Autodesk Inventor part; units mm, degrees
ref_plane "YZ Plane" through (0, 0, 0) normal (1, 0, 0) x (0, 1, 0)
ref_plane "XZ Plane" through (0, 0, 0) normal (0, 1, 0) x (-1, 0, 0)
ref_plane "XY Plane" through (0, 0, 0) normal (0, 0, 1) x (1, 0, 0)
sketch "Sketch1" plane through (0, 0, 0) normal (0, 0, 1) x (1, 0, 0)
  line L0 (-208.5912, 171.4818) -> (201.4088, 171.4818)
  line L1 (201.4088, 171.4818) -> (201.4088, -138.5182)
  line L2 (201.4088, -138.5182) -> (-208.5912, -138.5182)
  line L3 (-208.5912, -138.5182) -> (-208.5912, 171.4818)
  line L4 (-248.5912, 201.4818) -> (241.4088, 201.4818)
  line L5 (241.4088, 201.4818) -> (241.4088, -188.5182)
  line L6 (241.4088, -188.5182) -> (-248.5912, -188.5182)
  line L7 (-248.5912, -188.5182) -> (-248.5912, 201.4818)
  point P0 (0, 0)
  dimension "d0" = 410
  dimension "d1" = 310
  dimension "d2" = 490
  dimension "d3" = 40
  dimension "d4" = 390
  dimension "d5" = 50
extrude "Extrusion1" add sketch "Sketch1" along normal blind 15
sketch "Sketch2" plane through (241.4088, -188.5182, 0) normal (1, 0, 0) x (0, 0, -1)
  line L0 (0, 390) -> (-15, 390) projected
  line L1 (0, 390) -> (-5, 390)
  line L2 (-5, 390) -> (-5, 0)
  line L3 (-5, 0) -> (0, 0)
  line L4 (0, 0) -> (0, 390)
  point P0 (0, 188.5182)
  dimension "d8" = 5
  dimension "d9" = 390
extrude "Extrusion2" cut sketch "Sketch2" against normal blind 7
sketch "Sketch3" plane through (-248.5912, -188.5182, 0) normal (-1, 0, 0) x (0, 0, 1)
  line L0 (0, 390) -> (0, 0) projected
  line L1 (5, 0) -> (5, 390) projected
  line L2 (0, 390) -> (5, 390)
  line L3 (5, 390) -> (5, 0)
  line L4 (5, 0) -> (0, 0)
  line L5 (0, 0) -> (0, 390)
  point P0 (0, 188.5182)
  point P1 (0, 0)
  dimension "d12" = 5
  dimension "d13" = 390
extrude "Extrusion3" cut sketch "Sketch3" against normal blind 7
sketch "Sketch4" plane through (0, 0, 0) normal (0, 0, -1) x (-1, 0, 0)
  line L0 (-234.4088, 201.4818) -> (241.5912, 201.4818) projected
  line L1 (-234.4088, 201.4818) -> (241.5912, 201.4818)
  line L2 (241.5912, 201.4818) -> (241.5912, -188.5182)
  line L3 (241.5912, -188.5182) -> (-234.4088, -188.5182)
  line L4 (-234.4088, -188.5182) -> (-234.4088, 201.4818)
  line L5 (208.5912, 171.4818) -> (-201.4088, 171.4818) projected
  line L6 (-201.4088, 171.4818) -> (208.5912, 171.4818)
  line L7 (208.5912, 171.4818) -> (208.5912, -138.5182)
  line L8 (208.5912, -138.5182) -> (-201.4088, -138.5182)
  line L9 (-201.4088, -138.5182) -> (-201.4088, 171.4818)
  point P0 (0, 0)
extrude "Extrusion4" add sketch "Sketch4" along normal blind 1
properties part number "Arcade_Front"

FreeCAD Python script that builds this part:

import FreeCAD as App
import Part
import Sketcher
Q = App.Units.Quantity

doc = App.newDocument("Part")
params = doc.addObject("Spreadsheet::Sheet", "Params")
for row, (alias, value) in enumerate([
    ("sketch1_width", "490 mm"),
    ("sketch1_width2", "410 mm"),
    ("sketch1_height", "390 mm"),
    ("sketch1_height2", "310 mm"),
    ("pad1_length", "15 mm"),
    ("sketch2_width", "390 mm"),
    ("sketch2_height", "5 mm"),
    ("pocket1_length", "7 mm"),
    ("sketch3_width", "390 mm"),
    ("sketch3_height", "5 mm"),
    ("pocket2_length", "7 mm"),
    ("sketch4_width", "476 mm"),
    ("sketch4_width2", "410 mm"),
    ("sketch4_height", "390 mm"),
    ("sketch4_height2", "310 mm"),
    ("pad2_length", "1 mm"),
], start=1):
    params.set(f"A{row}", alias)
    params.set(f"B{row}", "=" + value)
    params.setAlias(f"B{row}", alias)

body = doc.addObject("PartDesign::Body", "Body")

# Sketch on XY plane
sketch1 = body.newObject("Sketcher::SketchObject", "Sketch")
sketch1.AttachmentSupport = (doc.getObject("XY_Plane"), [""])
sketch1.MapMode = "FlatFace"
sketch1.addGeometry([
    Part.LineSegment(App.Vector(241.4088, 201.4818, 0), App.Vector(-248.5912, 201.4818, 0)),  # 0
    Part.LineSegment(App.Vector(-248.5912, 201.4818, 0), App.Vector(-248.5912, -188.5182, 0)),  # 1
    Part.LineSegment(App.Vector(-248.5912, -188.5182, 0), App.Vector(241.4088, -188.5182, 0)),  # 2
    Part.LineSegment(App.Vector(241.4088, -188.5182, 0), App.Vector(241.4088, 201.4818, 0)),  # 3
    Part.LineSegment(App.Vector(-208.5912, -138.5182, 0), App.Vector(-208.5912, 171.4818, 0)),  # 4
    Part.LineSegment(App.Vector(-208.5912, 171.4818, 0), App.Vector(201.4088, 171.4818, 0)),  # 5
    Part.LineSegment(App.Vector(201.4088, 171.4818, 0), App.Vector(201.4088, -138.5182, 0)),  # 6
    Part.LineSegment(App.Vector(201.4088, -138.5182, 0), App.Vector(-208.5912, -138.5182, 0)),  # 7
], False)
sketch1.addConstraint([
    Sketcher.Constraint("Coincident", 0, 2, 1, 1),
    Sketcher.Constraint("Coincident", 1, 2, 2, 1),
    Sketcher.Constraint("Coincident", 2, 2, 3, 1),
    Sketcher.Constraint("Coincident", 3, 2, 0, 1),
    Sketcher.Constraint("Coincident", 4, 2, 5, 1),
    Sketcher.Constraint("Coincident", 5, 2, 6, 1),
    Sketcher.Constraint("Coincident", 6, 2, 7, 1),
    Sketcher.Constraint("Coincident", 7, 2, 4, 1),
    Sketcher.Constraint("Horizontal", 0),
    Sketcher.Constraint("Vertical", 1),
    Sketcher.Constraint("Horizontal", 2),
    Sketcher.Constraint("Vertical", 3),
    Sketcher.Constraint("Vertical", 4),
    Sketcher.Constraint("Horizontal", 5),
    Sketcher.Constraint("Vertical", 6),
    Sketcher.Constraint("Horizontal", 7),
    Sketcher.Constraint("DistanceX", 0, 2, 0, 1, Q("490 mm")),
    Sketcher.Constraint("DistanceX", 5, 1, 5, 2, Q("410 mm")),
    Sketcher.Constraint("DistanceY", 1, 2, 1, 1, Q("390 mm")),
    Sketcher.Constraint("DistanceY", 4, 1, 4, 2, Q("310 mm")),
    Sketcher.Constraint("DistanceX", 0, 2, 4, 2, Q("40 mm")),
    Sketcher.Constraint("DistanceY", 2, 2, 6, 2, Q("50 mm")),
    Sketcher.Constraint("DistanceX", 0, 2, -1, 1, Q("248.5912 mm")),
    Sketcher.Constraint("DistanceY", -1, 1, 0, 2, Q("201.4818 mm")),
])
sketch1.setExpression("Constraints[16]", "Params.sketch1_width")
sketch1.setExpression("Constraints[17]", "Params.sketch1_width2")
sketch1.setExpression("Constraints[18]", "Params.sketch1_height")
sketch1.setExpression("Constraints[19]", "Params.sketch1_height2")
pad1 = body.newObject("PartDesign::Pad", "Pad")
pad1.Profile = sketch1
pad1.setExpression("Length", "Params.pad1_length")

# Sketch on YZ plane
sketch2 = body.newObject("Sketcher::SketchObject", "Sketch001")
sketch2.AttachmentSupport = (doc.getObject("YZ_Plane"), [""])
sketch2.MapMode = "FlatFace"
sketch2.AttachmentOffset = App.Placement(App.Vector(0, 0, 241.4088), App.Rotation())
sketch2.addGeometry([
    Part.LineSegment(App.Vector(-188.5182, 0, 0), App.Vector(201.4818, 0, 0)),
    Part.LineSegment(App.Vector(201.4818, 0, 0), App.Vector(201.4818, 5, 0)),
    Part.LineSegment(App.Vector(201.4818, 5, 0), App.Vector(-188.5182, 5, 0)),
    Part.LineSegment(App.Vector(-188.5182, 5, 0), App.Vector(-188.5182, 0, 0)),
], False)
sketch2.addConstraint([
    Sketcher.Constraint("Coincident", 0, 2, 1, 1),
    Sketcher.Constraint("Coincident", 1, 2, 2, 1),
    Sketcher.Constraint("Coincident", 2, 2, 3, 1),
    Sketcher.Constraint("Coincident", 3, 2, 0, 1),
    Sketcher.Constraint("Horizontal", 0),
    Sketcher.Constraint("Vertical", 1),
    Sketcher.Constraint("Horizontal", 2),
    Sketcher.Constraint("Vertical", 3),
    Sketcher.Constraint("PointOnObject", 0, 2, -1),
    Sketcher.Constraint("DistanceX", 0, 1, 0, 2, Q("390 mm")),
    Sketcher.Constraint("DistanceY", 1, 1, 1, 2, Q("5 mm")),
    Sketcher.Constraint("DistanceX", -1, 1, 0, 2, Q("201.4818 mm")),
])
sketch2.setExpression("Constraints[9]", "Params.sketch2_width")
sketch2.setExpression("Constraints[10]", "Params.sketch2_height")
pocket1 = body.newObject("PartDesign::Pocket", "Pocket")
pocket1.Profile = sketch2
pocket1.setExpression("Length", "Params.pocket1_length")

# Sketch on YZ plane
sketch3 = body.newObject("Sketcher::SketchObject", "Sketch002")
sketch3.AttachmentSupport = (doc.getObject("YZ_Plane"), [""])
sketch3.MapMode = "FlatFace"
sketch3.AttachmentOffset = App.Placement(App.Vector(0, 0, -248.5912), App.Rotation())
sketch3.addGeometry([
    Part.LineSegment(App.Vector(201.4818, 5, 0), App.Vector(201.4818, 0, 0)),
    Part.LineSegment(App.Vector(201.4818, 0, 0), App.Vector(-188.5182, 0, 0)),
    Part.LineSegment(App.Vector(-188.5182, 0, 0), App.Vector(-188.5182, 5, 0)),
    Part.LineSegment(App.Vector(-188.5182, 5, 0), App.Vector(201.4818, 5, 0)),
], False)
sketch3.addConstraint([
    Sketcher.Constraint("Coincident", 0, 2, 1, 1),
    Sketcher.Constraint("Coincident", 1, 2, 2, 1),
    Sketcher.Constraint("Coincident", 2, 2, 3, 1),
    Sketcher.Constraint("Coincident", 3, 2, 0, 1),
    Sketcher.Constraint("Vertical", 0),
    Sketcher.Constraint("Horizontal", 1),
    Sketcher.Constraint("Vertical", 2),
    Sketcher.Constraint("Horizontal", 3),
    Sketcher.Constraint("PointOnObject", 0, 2, -1),
    Sketcher.Constraint("DistanceX", 1, 2, 1, 1, Q("390 mm")),
    Sketcher.Constraint("DistanceY", 0, 2, 0, 1, Q("5 mm")),
    Sketcher.Constraint("DistanceX", -1, 1, 0, 2, Q("201.4818 mm")),
])
sketch3.setExpression("Constraints[9]", "Params.sketch3_width")
sketch3.setExpression("Constraints[10]", "Params.sketch3_height")
pocket2 = body.newObject("PartDesign::Pocket", "Pocket001")
pocket2.Profile = sketch3
pocket2.setExpression("Length", "Params.pocket2_length")
pocket2.Reversed = True

# Sketch on XY plane
sketch4 = body.newObject("Sketcher::SketchObject", "Sketch003")
sketch4.AttachmentSupport = (doc.getObject("XY_Plane"), [""])
sketch4.MapMode = "FlatFace"
sketch4.addGeometry([
    Part.LineSegment(App.Vector(-241.5912, 201.4818, 0), App.Vector(234.4088, 201.4818, 0)),  # 0
    Part.LineSegment(App.Vector(234.4088, 201.4818, 0), App.Vector(234.4088, -188.5182, 0)),  # 1
    Part.LineSegment(App.Vector(234.4088, -188.5182, 0), App.Vector(-241.5912, -188.5182, 0)),  # 2
    Part.LineSegment(App.Vector(-241.5912, -188.5182, 0), App.Vector(-241.5912, 201.4818, 0)),  # 3
    Part.LineSegment(App.Vector(201.4088, 171.4818, 0), App.Vector(-208.5912, 171.4818, 0)),  # 4
    Part.LineSegment(App.Vector(-208.5912, 171.4818, 0), App.Vector(-208.5912, -138.5182, 0)),  # 5
    Part.LineSegment(App.Vector(-208.5912, -138.5182, 0), App.Vector(201.4088, -138.5182, 0)),  # 6
    Part.LineSegment(App.Vector(201.4088, -138.5182, 0), App.Vector(201.4088, 171.4818, 0)),  # 7
], False)
sketch4.addConstraint([
    Sketcher.Constraint("Coincident", 0, 2, 1, 1),
    Sketcher.Constraint("Coincident", 1, 2, 2, 1),
    Sketcher.Constraint("Coincident", 2, 2, 3, 1),
    Sketcher.Constraint("Coincident", 3, 2, 0, 1),
    Sketcher.Constraint("Coincident", 4, 2, 5, 1),
    Sketcher.Constraint("Coincident", 5, 2, 6, 1),
    Sketcher.Constraint("Coincident", 6, 2, 7, 1),
    Sketcher.Constraint("Coincident", 7, 2, 4, 1),
    Sketcher.Constraint("Horizontal", 0),
    Sketcher.Constraint("Vertical", 1),
    Sketcher.Constraint("Horizontal", 2),
    Sketcher.Constraint("Vertical", 3),
    Sketcher.Constraint("Horizontal", 4),
    Sketcher.Constraint("Vertical", 5),
    Sketcher.Constraint("Horizontal", 6),
    Sketcher.Constraint("Vertical", 7),
    Sketcher.Constraint("DistanceX", 0, 1, 0, 2, Q("476 mm")),
    Sketcher.Constraint("DistanceX", 4, 2, 4, 1, Q("410 mm")),
    Sketcher.Constraint("DistanceY", 1, 2, 1, 1, Q("390 mm")),
    Sketcher.Constraint("DistanceY", 5, 2, 5, 1, Q("310 mm")),
    Sketcher.Constraint("DistanceX", 3, 2, 4, 2, Q("33 mm")),
    Sketcher.Constraint("DistanceY", 4, 2, 3, 2, Q("30 mm")),
    Sketcher.Constraint("DistanceX", -1, 1, 0, 2, Q("234.4088 mm")),
    Sketcher.Constraint("DistanceY", -1, 1, 0, 2, Q("201.4818 mm")),
])
sketch4.setExpression("Constraints[16]", "Params.sketch4_width")
sketch4.setExpression("Constraints[17]", "Params.sketch4_width2")
sketch4.setExpression("Constraints[18]", "Params.sketch4_height")
sketch4.setExpression("Constraints[19]", "Params.sketch4_height2")
pad2 = body.newObject("PartDesign::Pad", "Pad001")
pad2.Profile = sketch4
pad2.setExpression("Length", "Params.pad2_length")
pad2.Reversed = True

doc.recompute()
